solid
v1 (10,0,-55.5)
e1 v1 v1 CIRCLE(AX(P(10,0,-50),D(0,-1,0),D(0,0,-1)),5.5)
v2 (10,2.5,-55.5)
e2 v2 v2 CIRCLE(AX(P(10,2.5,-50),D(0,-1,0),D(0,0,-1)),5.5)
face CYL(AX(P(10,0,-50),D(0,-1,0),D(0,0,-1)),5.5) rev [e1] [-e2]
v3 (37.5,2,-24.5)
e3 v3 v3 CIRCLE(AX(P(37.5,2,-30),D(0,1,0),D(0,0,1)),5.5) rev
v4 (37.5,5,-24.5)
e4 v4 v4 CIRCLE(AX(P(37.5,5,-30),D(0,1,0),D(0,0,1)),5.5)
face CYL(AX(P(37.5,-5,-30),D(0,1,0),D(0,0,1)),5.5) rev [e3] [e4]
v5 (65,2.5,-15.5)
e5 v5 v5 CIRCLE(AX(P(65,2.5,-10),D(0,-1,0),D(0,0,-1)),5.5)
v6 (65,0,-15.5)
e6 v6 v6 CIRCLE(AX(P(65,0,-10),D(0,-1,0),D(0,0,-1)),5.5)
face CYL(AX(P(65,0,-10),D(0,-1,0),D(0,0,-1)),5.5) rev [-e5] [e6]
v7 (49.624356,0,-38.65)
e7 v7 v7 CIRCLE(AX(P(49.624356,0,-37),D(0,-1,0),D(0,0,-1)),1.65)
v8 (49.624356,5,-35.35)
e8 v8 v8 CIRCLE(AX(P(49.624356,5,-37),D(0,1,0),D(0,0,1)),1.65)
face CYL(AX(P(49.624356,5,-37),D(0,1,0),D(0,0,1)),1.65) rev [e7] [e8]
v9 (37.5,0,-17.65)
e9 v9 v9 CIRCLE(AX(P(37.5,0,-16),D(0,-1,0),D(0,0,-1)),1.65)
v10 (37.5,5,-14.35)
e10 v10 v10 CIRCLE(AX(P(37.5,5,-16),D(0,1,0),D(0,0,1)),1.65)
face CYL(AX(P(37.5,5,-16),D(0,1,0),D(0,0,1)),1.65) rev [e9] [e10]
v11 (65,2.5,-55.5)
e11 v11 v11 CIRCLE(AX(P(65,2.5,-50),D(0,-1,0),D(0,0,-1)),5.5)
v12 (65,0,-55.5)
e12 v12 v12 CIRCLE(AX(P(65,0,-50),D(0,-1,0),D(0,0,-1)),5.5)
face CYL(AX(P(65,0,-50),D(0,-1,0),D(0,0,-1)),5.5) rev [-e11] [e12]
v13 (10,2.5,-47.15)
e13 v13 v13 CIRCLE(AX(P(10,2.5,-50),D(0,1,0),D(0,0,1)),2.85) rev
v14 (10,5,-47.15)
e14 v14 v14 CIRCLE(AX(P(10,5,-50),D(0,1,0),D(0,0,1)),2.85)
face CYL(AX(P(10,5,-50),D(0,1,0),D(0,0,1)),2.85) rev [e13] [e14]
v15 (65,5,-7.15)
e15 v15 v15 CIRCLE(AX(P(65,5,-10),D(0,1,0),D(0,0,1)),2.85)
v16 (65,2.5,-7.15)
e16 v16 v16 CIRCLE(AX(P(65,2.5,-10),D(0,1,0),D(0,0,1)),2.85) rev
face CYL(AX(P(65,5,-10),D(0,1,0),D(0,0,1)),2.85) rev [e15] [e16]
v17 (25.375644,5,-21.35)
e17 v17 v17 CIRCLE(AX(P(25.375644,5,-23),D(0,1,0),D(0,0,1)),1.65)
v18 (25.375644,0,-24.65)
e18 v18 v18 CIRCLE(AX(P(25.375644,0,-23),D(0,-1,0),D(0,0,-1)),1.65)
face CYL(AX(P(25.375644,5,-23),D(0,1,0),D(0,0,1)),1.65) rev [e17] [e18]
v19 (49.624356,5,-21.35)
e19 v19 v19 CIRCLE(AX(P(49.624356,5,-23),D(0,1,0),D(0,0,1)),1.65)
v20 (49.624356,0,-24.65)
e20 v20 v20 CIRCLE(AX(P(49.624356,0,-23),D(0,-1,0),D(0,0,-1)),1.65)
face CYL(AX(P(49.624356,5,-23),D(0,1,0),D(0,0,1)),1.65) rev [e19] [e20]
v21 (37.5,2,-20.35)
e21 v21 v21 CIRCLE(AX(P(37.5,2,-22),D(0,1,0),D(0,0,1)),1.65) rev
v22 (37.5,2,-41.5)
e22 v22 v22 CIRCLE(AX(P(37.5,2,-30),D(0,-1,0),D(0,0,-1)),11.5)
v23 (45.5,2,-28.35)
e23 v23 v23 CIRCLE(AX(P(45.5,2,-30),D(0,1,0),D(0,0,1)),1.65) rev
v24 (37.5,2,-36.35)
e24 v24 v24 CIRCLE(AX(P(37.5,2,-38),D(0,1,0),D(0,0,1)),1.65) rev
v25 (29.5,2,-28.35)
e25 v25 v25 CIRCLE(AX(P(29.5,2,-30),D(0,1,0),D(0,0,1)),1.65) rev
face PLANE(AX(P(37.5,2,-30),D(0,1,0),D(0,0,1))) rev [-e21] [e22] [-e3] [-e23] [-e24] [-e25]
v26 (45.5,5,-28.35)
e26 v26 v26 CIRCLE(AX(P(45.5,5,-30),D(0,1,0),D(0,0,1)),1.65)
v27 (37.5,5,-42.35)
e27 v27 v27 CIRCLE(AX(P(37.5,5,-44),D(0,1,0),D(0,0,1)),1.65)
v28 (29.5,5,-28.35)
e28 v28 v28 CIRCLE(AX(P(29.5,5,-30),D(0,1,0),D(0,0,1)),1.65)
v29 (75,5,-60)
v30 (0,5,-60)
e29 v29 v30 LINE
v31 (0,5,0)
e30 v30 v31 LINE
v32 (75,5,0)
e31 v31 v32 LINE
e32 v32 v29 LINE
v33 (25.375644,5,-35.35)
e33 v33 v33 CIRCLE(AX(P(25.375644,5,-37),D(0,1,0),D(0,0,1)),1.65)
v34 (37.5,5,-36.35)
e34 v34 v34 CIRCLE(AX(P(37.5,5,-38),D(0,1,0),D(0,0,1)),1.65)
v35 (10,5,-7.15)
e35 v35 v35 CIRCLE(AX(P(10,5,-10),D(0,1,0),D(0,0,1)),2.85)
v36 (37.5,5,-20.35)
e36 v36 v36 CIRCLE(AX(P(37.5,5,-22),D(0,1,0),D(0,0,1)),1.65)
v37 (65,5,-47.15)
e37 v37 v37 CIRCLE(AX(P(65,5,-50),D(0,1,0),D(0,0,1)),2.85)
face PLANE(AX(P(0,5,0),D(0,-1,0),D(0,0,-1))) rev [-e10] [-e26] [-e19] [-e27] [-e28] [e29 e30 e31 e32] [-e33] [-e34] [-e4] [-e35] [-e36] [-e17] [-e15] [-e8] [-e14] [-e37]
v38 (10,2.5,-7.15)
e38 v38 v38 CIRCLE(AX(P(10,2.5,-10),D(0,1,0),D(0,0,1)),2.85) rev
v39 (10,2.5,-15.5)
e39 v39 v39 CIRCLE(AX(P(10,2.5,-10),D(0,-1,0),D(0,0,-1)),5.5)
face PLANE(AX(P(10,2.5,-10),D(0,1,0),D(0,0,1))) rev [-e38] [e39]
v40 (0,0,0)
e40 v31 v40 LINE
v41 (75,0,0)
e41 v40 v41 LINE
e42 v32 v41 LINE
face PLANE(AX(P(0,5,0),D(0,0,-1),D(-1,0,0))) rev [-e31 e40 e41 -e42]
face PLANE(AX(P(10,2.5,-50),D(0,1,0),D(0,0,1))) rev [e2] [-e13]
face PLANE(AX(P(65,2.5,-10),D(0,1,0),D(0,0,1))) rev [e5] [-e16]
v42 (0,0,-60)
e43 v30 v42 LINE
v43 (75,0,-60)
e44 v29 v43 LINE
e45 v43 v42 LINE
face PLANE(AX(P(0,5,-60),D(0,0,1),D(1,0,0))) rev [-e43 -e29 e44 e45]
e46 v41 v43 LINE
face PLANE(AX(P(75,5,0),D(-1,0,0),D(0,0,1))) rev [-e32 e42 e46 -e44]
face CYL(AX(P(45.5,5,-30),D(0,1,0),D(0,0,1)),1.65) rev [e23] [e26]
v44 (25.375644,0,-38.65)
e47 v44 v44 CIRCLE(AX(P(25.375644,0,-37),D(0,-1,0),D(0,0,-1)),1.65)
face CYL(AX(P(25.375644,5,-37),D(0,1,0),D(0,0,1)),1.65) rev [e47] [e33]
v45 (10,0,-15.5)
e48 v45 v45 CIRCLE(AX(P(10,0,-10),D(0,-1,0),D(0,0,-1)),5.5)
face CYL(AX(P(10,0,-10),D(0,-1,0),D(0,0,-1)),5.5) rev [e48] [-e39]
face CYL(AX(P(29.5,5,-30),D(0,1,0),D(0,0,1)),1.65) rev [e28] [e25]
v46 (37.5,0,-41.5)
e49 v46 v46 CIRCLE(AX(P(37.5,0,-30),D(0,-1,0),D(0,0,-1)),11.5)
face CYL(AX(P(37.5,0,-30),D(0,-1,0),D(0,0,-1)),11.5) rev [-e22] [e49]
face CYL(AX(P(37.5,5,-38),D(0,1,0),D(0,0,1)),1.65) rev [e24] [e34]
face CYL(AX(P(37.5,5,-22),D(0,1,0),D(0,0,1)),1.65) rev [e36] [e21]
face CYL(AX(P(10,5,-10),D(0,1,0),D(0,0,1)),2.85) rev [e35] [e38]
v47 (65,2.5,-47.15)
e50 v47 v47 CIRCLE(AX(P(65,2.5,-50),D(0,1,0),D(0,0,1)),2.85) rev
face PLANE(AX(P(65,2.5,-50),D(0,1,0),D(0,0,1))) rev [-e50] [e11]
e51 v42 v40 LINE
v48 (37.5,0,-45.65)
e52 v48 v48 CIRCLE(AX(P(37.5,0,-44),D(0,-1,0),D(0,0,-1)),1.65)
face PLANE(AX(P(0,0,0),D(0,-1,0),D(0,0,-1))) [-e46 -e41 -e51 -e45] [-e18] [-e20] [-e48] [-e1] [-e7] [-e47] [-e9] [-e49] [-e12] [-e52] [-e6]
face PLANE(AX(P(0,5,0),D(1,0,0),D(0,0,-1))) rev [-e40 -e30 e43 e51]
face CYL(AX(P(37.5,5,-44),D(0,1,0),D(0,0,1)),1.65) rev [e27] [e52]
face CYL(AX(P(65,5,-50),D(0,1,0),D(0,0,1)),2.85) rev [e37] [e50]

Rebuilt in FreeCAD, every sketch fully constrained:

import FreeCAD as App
import Part
import Sketcher
from FreeCAD import Vector
Q = App.Units.Quantity


def add_polygon(sketch, points):
    """Adds a closed chain of lines whose ends are joined by coincident constraints."""
    first, n = sketch.GeometryCount, len(points)
    for a, b in zip(points, points[1:] + points[:1]):
        sketch.addGeometry(Part.LineSegment(App.Vector(*a, 0), App.Vector(*b, 0)), False)
    for i in range(n):
        sketch.addConstraint(Sketcher.Constraint("Coincident", first + i, 2, first + (i + 1) % n, 1))

doc = App.newDocument("Part")
params = doc.addObject("Spreadsheet::Sheet", "Params")
for row, (alias, value) in enumerate([
    ("sketch1_width", "75 mm"),
    ("sketch1_height", "60 mm"),
    ("pad1_length", "5 mm"),
    ("sketch2_diameter", "5.7 mm"),
    ("hole_diameter", "5.7 mm"),
    ("sketch3_diameter", "11 mm"),
    ("pocket1_length", "10 mm"),
    ("sketch4_diameter", "3.3 mm"),
    ("hole2_diameter", "3.3 mm"),
    ("sketch5_diameter", "11 mm"),
    ("hole3_diameter", "11 mm"),
    ("hole3_depth", "2.5 mm"),
    ("sketch6_diameter", "3.3 mm"),
    ("hole4_diameter", "3.3 mm"),
    ("sketch7_diameter", "23 mm"),
    ("hole5_diameter", "23 mm"),
    ("hole5_depth", "2 mm"),
], start=1):
    params.set(f"A{row}", alias)
    params.set(f"B{row}", "=" + value)
    params.setAlias(f"B{row}", alias)

body = doc.addObject("PartDesign::Body", "Body")

# Sketch on XZ plane
sketch1 = body.newObject("Sketcher::SketchObject", "Sketch")
sketch1.AttachmentSupport = (doc.getObject("XZ_Plane"), [""])
sketch1.MapMode = "FlatFace"
add_polygon(sketch1, [(0, -60), (0, 0), (75, 0), (75, -60)])  # lines 0-3
sketch1.addConstraint([
    Sketcher.Constraint("Vertical", 0),
    Sketcher.Constraint("Horizontal", 1),
    Sketcher.Constraint("Vertical", 2),
    Sketcher.Constraint("Horizontal", 3),
    Sketcher.Constraint("Coincident", 0, 2, -1, 1),
    Sketcher.Constraint("DistanceX", 1, 1, 1, 2, Q("75 mm")),
    Sketcher.Constraint("DistanceY", 0, 1, 0, 2, Q("60 mm")),
])
sketch1.setExpression("Constraints[9]", "Params.sketch1_width")
sketch1.setExpression("Constraints[10]", "Params.sketch1_height")
pad1 = body.newObject("PartDesign::Pad", "Pad")
pad1.Profile = sketch1
pad1.setExpression("Length", "Params.pad1_length")
pad1.Reversed = True

# Sketch on XZ plane
sketch2 = body.newObject("Sketcher::SketchObject", "Sketch001")
sketch2.AttachmentSupport = (doc.getObject("XZ_Plane"), [""])
sketch2.MapMode = "FlatFace"
sketch2.AttachmentOffset = App.Placement(Vector(0, 0, -5), App.Rotation())
sketch2.addGeometry([
    Part.Circle(Vector(10, -50, 0), Vector(0, 0, 1), 2.9),
    Part.Circle(Vector(10, -10, 0), Vector(0, 0, 1), 2.9),
    Part.Circle(Vector(65, -10, 0), Vector(0, 0, 1), 2.9),
    Part.Circle(Vector(65, -50, 0), Vector(0, 0, 1), 2.9),
], False)
sketch2.addConstraint([
    Sketcher.Constraint("Equal", 0, 1),
    Sketcher.Constraint("Equal", 1, 2),
    Sketcher.Constraint("Equal", 2, 3),
    Sketcher.Constraint("Horizontal", 1, 3, 2, 3),
    Sketcher.Constraint("Horizontal", 0, 3, 3, 3),
    Sketcher.Constraint("Vertical", 0, 3, 1, 3),
    Sketcher.Constraint("Vertical", 2, 3, 3, 3),
    Sketcher.Constraint("Diameter", 0, Q("5.7 mm")),
    Sketcher.Constraint("DistanceX", -1, 1, 0, 3, Q("10 mm")),
    Sketcher.Constraint("DistanceY", 0, 3, -1, 1, Q("50 mm")),
    Sketcher.Constraint("DistanceY", 1, 3, -1, 1, Q("10 mm")),
    Sketcher.Constraint("DistanceX", -1, 1, 2, 3, Q("65 mm")),
])
sketch2.setExpression("Constraints[7]", "Params.sketch2_diameter")
doc.recompute()
hole = body.newObject("PartDesign::Hole", "Hole")
hole.Profile = sketch2
hole.ThreadType = "None"
hole.setExpression("Diameter", "Params.hole_diameter")
hole.DepthType = "ThroughAll"
hole.Reversed = True

# Sketch on XZ plane
sketch3 = body.newObject("Sketcher::SketchObject", "Sketch002")
sketch3.AttachmentSupport = (doc.getObject("XZ_Plane"), [""])
sketch3.MapMode = "FlatFace"
sketch3.AttachmentOffset = App.Placement(Vector(0, 0, -5), App.Rotation())
sketch3.addGeometry(Part.Circle(Vector(38, -30, 0), Vector(0, 0, 1), 6), False)
sketch3.addConstraint([
    Sketcher.Constraint("Diameter", 0, Q("11 mm")),
    Sketcher.Constraint("DistanceY", 0, 3, -1, 1, Q("30 mm")),
    Sketcher.Constraint("DistanceX", -1, 1, 0, 3, Q("37.5 mm")),
])
sketch3.setExpression("Constraints[0]", "Params.sketch3_diameter")
pocket1 = body.newObject("PartDesign::Pocket", "Pocket")
pocket1.Profile = sketch3
pocket1.setExpression("Length", "Params.pocket1_length")
pocket1.Reversed = True

# Sketch on XZ plane
sketch4 = body.newObject("Sketcher::SketchObject", "Sketch003")
sketch4.AttachmentSupport = (doc.getObject("XZ_Plane"), [""])
sketch4.MapMode = "FlatFace"
sketch4.AttachmentOffset = App.Placement(Vector(0, 0, -5), App.Rotation())
sketch4.addGeometry(Part.Circle(Vector(37.5, -44, 0), Vector(0, 0, 1), 1.6), False)
sketch4.addConstraint([
    Sketcher.Constraint("Diameter", 0, Q("3.3 mm")),
    Sketcher.Constraint("DistanceY", 0, 3, -1, 1, Q("44 mm")),
    Sketcher.Constraint("DistanceX", -1, 1, 0, 3, Q("37.5 mm")),
])
sketch4.setExpression("Constraints[0]", "Params.sketch4_diameter")
doc.recompute()
hole2 = body.newObject("PartDesign::Hole", "Hole001")
hole2.Profile = sketch4
hole2.ThreadType = "None"
hole2.setExpression("Diameter", "Params.hole2_diameter")
hole2.DepthType = "ThroughAll"
hole2.Reversed = True
doc.recompute()

datumline = body.newObject("PartDesign::Line", "DatumLine")
datumline.Placement = App.Placement(Vector(37.5, 0, -30), App.Rotation(Vector(0, 0, 1), Vector(0, 1, 0)))
polarpattern = body.newObject("PartDesign::PolarPattern", "PolarPattern")
polarpattern.Originals = [hole2]
polarpattern.Axis = (datumline, [""])
polarpattern.Angle = 360
polarpattern.Occurrences = 6
body.Tip = polarpattern

# Sketch on XZ plane
sketch5 = body.newObject("Sketcher::SketchObject", "Sketch004")
sketch5.AttachmentSupport = (doc.getObject("XZ_Plane"), [""])
sketch5.MapMode = "FlatFace"
sketch5.addGeometry([
    Part.Circle(Vector(10, -10, 0), Vector(0, 0, 1), 6),
    Part.Circle(Vector(10, -50, 0), Vector(0, 0, 1), 6),
    Part.Circle(Vector(65, -50, 0), Vector(0, 0, 1), 6),
    Part.Circle(Vector(65, -10, 0), Vector(0, 0, 1), 6),
], False)
sketch5.addConstraint([
    Sketcher.Constraint("Equal", 0, 1),
    Sketcher.Constraint("Equal", 1, 2),
    Sketcher.Constraint("Equal", 2, 3),
    Sketcher.Constraint("Horizontal", 1, 3, 2, 3),
    Sketcher.Constraint("Horizontal", 0, 3, 3, 3),
    Sketcher.Constraint("Vertical", 0, 3, 1, 3),
    Sketcher.Constraint("Vertical", 2, 3, 3, 3),
    Sketcher.Constraint("Diameter", 0, Q("11 mm")),
    Sketcher.Constraint("DistanceX", -1, 1, 0, 3, Q("10 mm")),
    Sketcher.Constraint("DistanceY", 0, 3, -1, 1, Q("10 mm")),
    Sketcher.Constraint("DistanceY", 1, 3, -1, 1, Q("50 mm")),
    Sketcher.Constraint("DistanceX", -1, 1, 2, 3, Q("65 mm")),
])
sketch5.setExpression("Constraints[7]", "Params.sketch5_diameter")
doc.recompute()
hole3 = body.newObject("PartDesign::Hole", "Hole002")
hole3.Profile = sketch5
hole3.ThreadType = "None"
hole3.setExpression("Diameter", "Params.hole3_diameter")
hole3.DepthType = "Dimension"
hole3.setExpression("Depth", "Params.hole3_depth")
hole3.DrillPoint = "Flat"

# Sketch on XZ plane
sketch6 = body.newObject("Sketcher::SketchObject", "Sketch005")
sketch6.AttachmentSupport = (doc.getObject("XZ_Plane"), [""])
sketch6.MapMode = "FlatFace"
sketch6.AttachmentOffset = App.Placement(Vector(0, 0, -5), App.Rotation())
sketch6.addGeometry([
    Part.Circle(Vector(29.5, -30, 0), Vector(0, 0, 1), 1.6),
    Part.Circle(Vector(37.5, -38, 0), Vector(0, 0, 1), 1.6),
    Part.Circle(Vector(45.5, -30, 0), Vector(0, 0, 1), 1.6),
    Part.Circle(Vector(37.5, -22, 0), Vector(0, 0, 1), 1.6),
], False)
sketch6.addConstraint([
    Sketcher.Constraint("Equal", 0, 1),
    Sketcher.Constraint("Equal", 1, 2),
    Sketcher.Constraint("Equal", 2, 3),
    Sketcher.Constraint("Horizontal", 0, 3, 2, 3),
    Sketcher.Constraint("Vertical", 1, 3, 3, 3),
    Sketcher.Constraint("Diameter", 0, Q("3.3 mm")),
    Sketcher.Constraint("DistanceY", 0, 3, -1, 1, Q("30 mm")),
    Sketcher.Constraint("DistanceY", 1, 3, -1, 1, Q("38 mm")),
    Sketcher.Constraint("DistanceY", 3, 3, -1, 1, Q("22 mm")),
    Sketcher.Constraint("DistanceX", 0, 3, 1, 3, Q("8 mm")),
    Sketcher.Constraint("DistanceX", 1, 3, 2, 3, Q("8 mm")),
    Sketcher.Constraint("DistanceX", -1, 1, 0, 3, Q("29.5 mm")),
])
sketch6.setExpression("Constraints[5]", "Params.sketch6_diameter")
doc.recompute()
hole4 = body.newObject("PartDesign::Hole", "Hole003")
hole4.Profile = sketch6
hole4.ThreadType = "None"
hole4.setExpression("Diameter", "Params.hole4_diameter")
hole4.DepthType = "ThroughAll"
hole4.Reversed = True

# Sketch on XZ plane
sketch7 = body.newObject("Sketcher::SketchObject", "Sketch006")
sketch7.AttachmentSupport = (doc.getObject("XZ_Plane"), [""])
sketch7.MapMode = "FlatFace"
sketch7.addGeometry(Part.Circle(Vector(38, -30, 0), Vector(0, 0, 1), 12), False)
sketch7.addConstraint([
    Sketcher.Constraint("Diameter", 0, Q("23 mm")),
    Sketcher.Constraint("DistanceY", 0, 3, -1, 1, Q("30 mm")),
    Sketcher.Constraint("DistanceX", -1, 1, 0, 3, Q("37.5 mm")),
])
sketch7.setExpression("Constraints[0]", "Params.sketch7_diameter")
doc.recompute()
hole5 = body.newObject("PartDesign::Hole", "Hole004")
hole5.Profile = sketch7
hole5.ThreadType = "None"
hole5.setExpression("Diameter", "Params.hole5_diameter")
hole5.DepthType = "Dimension"
hole5.setExpression("Depth", "Params.hole5_depth")
hole5.DrillPoint = "Flat"

doc.recompute()
